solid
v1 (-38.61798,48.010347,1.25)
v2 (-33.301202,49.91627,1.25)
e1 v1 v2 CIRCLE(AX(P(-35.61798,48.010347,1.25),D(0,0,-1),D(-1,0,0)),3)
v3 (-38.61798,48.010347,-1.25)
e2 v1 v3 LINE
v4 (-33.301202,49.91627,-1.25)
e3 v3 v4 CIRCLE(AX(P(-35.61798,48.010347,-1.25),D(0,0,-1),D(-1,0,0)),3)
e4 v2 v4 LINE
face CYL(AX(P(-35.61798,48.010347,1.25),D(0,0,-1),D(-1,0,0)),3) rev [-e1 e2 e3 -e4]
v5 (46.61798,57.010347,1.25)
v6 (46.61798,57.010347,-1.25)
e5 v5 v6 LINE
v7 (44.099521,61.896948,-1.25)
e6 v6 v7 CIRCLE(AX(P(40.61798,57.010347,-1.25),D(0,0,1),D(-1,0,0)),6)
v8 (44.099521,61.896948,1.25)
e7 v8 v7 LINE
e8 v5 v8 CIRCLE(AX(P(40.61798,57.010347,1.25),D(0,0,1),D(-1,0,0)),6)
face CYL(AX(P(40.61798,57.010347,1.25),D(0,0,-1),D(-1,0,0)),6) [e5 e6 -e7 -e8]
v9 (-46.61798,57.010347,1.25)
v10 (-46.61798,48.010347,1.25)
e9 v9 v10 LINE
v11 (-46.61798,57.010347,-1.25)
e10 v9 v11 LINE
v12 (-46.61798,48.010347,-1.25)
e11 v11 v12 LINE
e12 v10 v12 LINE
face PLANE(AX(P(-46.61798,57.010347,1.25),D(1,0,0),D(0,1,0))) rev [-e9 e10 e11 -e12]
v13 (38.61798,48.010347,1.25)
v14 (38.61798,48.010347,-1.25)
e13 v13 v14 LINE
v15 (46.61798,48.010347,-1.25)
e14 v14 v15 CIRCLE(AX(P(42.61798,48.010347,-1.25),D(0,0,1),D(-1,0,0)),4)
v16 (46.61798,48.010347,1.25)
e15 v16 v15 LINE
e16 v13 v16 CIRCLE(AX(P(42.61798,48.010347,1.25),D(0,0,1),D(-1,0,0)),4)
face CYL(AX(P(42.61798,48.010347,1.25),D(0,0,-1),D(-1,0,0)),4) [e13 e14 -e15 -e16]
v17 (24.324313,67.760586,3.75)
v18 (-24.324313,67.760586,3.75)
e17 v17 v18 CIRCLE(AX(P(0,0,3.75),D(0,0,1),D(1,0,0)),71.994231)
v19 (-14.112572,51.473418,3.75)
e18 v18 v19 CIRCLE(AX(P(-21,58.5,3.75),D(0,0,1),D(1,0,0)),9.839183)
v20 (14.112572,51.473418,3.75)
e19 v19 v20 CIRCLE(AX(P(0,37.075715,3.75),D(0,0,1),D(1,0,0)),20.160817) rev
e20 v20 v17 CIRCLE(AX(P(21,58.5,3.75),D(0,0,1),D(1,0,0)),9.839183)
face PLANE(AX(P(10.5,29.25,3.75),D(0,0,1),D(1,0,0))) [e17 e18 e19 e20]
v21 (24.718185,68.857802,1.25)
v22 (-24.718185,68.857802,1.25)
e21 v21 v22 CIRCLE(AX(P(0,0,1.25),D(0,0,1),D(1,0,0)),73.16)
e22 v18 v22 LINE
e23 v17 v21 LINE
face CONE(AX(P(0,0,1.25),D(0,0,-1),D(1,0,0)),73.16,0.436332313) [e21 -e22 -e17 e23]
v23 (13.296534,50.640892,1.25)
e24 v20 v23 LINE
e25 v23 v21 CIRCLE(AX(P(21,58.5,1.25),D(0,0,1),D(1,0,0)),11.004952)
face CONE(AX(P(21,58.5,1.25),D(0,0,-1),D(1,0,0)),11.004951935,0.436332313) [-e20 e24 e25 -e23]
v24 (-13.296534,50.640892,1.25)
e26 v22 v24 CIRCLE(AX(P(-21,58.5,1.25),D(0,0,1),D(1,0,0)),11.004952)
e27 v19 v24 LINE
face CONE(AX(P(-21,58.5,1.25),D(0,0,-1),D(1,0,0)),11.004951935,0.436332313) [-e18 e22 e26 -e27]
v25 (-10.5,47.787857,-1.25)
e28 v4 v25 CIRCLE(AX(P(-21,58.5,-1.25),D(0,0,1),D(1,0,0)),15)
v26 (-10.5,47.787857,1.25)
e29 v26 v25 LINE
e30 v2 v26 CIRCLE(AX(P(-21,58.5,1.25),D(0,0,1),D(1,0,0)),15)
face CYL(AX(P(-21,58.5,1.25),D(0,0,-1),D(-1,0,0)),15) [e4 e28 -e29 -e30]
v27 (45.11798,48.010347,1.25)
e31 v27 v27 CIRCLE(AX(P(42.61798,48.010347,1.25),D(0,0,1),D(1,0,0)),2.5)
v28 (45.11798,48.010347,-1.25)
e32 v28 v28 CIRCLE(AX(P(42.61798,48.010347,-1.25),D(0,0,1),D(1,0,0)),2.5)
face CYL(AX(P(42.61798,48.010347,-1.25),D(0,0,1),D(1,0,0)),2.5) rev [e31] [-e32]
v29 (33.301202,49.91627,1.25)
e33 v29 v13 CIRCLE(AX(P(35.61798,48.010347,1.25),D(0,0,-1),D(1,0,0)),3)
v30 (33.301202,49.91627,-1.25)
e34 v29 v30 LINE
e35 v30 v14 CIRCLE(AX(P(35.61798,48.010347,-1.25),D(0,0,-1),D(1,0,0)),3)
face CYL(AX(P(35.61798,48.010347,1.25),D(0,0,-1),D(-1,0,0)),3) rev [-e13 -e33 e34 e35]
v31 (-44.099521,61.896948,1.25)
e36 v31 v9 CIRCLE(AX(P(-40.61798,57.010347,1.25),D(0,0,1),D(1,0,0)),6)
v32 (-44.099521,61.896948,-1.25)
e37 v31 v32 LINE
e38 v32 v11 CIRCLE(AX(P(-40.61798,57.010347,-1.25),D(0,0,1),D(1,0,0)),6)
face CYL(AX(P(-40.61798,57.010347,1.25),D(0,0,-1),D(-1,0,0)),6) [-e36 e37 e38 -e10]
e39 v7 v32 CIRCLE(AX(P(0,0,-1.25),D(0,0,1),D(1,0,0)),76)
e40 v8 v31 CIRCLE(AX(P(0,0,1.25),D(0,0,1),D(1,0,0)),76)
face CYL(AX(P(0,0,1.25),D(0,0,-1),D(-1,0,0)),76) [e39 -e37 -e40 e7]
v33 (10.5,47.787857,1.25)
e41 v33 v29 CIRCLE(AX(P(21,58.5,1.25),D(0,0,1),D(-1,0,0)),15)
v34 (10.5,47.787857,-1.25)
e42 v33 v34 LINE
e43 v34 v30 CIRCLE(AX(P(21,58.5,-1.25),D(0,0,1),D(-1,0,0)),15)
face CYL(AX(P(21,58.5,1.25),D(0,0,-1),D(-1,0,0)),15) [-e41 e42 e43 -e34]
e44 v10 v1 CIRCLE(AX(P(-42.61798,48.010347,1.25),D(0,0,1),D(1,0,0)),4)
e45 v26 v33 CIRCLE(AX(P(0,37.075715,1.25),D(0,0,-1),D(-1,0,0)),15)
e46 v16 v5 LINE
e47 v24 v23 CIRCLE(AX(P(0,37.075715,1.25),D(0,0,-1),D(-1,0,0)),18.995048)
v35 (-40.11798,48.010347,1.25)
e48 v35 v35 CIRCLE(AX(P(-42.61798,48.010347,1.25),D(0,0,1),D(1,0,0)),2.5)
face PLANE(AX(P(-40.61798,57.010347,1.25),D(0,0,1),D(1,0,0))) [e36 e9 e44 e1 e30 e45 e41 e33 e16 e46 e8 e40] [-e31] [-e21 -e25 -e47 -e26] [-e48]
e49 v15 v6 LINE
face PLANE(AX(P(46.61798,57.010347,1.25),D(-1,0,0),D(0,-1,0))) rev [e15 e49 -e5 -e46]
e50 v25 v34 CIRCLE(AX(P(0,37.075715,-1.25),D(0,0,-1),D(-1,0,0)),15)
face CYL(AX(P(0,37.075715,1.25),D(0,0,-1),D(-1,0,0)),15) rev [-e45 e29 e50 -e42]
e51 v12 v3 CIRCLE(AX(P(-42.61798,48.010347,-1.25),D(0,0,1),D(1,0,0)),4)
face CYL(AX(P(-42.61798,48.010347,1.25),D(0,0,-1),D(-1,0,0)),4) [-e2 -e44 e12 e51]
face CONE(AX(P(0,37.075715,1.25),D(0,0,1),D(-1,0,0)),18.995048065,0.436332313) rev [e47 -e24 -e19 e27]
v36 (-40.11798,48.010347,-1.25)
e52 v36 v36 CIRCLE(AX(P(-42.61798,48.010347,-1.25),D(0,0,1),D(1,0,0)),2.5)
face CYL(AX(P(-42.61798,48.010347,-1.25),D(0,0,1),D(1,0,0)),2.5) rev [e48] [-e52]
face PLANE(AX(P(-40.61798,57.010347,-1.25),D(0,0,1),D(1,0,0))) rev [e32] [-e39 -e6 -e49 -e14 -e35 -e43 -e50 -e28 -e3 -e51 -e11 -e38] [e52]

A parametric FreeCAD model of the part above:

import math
import FreeCAD as App
import Part
import Sketcher

doc = App.newDocument("Part")
body = doc.addObject("PartDesign::Body", "Body")

# Sketch on XY plane
sketch1 = doc.addObject("Sketcher::SketchObject", "Sketch")
body.addObject(sketch1)
sketch1.AttachmentSupport = (doc.XY_Plane, [""])
sketch1.MapMode = "FlatFace"
sketch1.addGeometry([
    Part.LineSegment(App.Vector(-46.61798, 57.010347, 0), App.Vector(-46.61798, 48.010347, 0)),  # 0
    Part.ArcOfCircle(Part.Circle(App.Vector(-42.61798, 48.010347, 0), App.Vector(0, 0, 1), 4), math.radians(180), math.radians(360)),  # 1
    Part.ArcOfCircle(Part.Circle(App.Vector(-35.61798, 48.010347, 0), App.Vector(0, 0, 1), 3), math.radians(39.442789), math.radians(180)),  # 2
    Part.ArcOfCircle(Part.Circle(App.Vector(-21, 58.5, 0), App.Vector(0, 0, 1), 15), math.radians(-145.092816), math.radians(-45.572996)),  # 3
    Part.ArcOfCircle(Part.Circle(App.Vector(0, 37.075715, 0), App.Vector(0, 0, 1), 15), math.radians(45.572996), math.radians(134.427004)),  # 4
    Part.ArcOfCircle(Part.Circle(App.Vector(21, 58.5, 0), App.Vector(0, 0, 1), 15), math.radians(-134.427004), math.radians(-34.907184)),  # 5
    Part.ArcOfCircle(Part.Circle(App.Vector(35.61798, 48.010347, 0), App.Vector(0, 0, 1), 3), math.radians(0), math.radians(140.557211)),  # 6
    Part.ArcOfCircle(Part.Circle(App.Vector(42.61798, 48.010347, 0), App.Vector(0, 0, 1), 4), math.radians(180), math.radians(360)),  # 7
    Part.LineSegment(App.Vector(46.61798, 48.010347, 0), App.Vector(46.61798, 57.010347, 0)),  # 8
    Part.ArcOfCircle(Part.Circle(App.Vector(40.61798, 57.010347, 0), App.Vector(0, 0, 1), 6), math.radians(0), math.radians(54.531389)),  # 9
    Part.ArcOfCircle(Part.Circle(App.Vector(0, 0, 0), App.Vector(0, 0, 1), 76), math.radians(54.531389), math.radians(125.468611)),  # 10
    Part.ArcOfCircle(Part.Circle(App.Vector(-40.61798, 57.010347, 0), App.Vector(0, 0, 1), 6), math.radians(125.468611), math.radians(180)),  # 11
], False)
sketch1.addConstraint([
    Sketcher.Constraint("Coincident", 0, 2, 1, 1),
    Sketcher.Constraint("Coincident", 1, 2, 2, 2),
    Sketcher.Constraint("Coincident", 2, 1, 3, 1),
    Sketcher.Constraint("Coincident", 3, 2, 4, 2),
    Sketcher.Constraint("Coincident", 4, 1, 5, 1),
    Sketcher.Constraint("Coincident", 5, 2, 6, 2),
    Sketcher.Constraint("Coincident", 6, 1, 7, 1),
    Sketcher.Constraint("Coincident", 7, 2, 8, 1),
    Sketcher.Constraint("Coincident", 8, 2, 9, 1),
    Sketcher.Constraint("Coincident", 9, 2, 10, 1),
    Sketcher.Constraint("Coincident", 10, 2, 11, 1),
    Sketcher.Constraint("Coincident", 11, 2, 0, 1),
    Sketcher.Constraint("Vertical", 0),
    Sketcher.Constraint("Vertical", 8),
    Sketcher.Constraint("Coincident", 10, 3, -1, 1),
    Sketcher.Constraint("PointOnObject", 4, 3, -2),
    Sketcher.Constraint("Radius", 1, 4.0),
    Sketcher.Constraint("Radius", 2, 3.0),
    Sketcher.Constraint("Radius", 3, 15.0),
    Sketcher.Constraint("Radius", 4, 15.0),
    Sketcher.Constraint("Radius", 5, 15.0),
    Sketcher.Constraint("Radius", 6, 3.0),
    Sketcher.Constraint("Radius", 7, 4.0),
    Sketcher.Constraint("Radius", 9, 6.0),
    Sketcher.Constraint("Radius", 10, 76.0),
    Sketcher.Constraint("Radius", 11, 6.0),
    Sketcher.Constraint("DistanceY", 0, 2, 0, 1, 9.0),
    Sketcher.Constraint("DistanceY", 8, 1, 8, 2, 9.0),
    Sketcher.Constraint("DistanceX", 3, 3, -1, 1, 21.0),
    Sketcher.Constraint("DistanceX", -1, 1, 5, 3, 21.0),
    Sketcher.Constraint("DistanceY", 7, 3, 9, 3, 9.0),
    Sketcher.Constraint("DistanceY", 6, 3, 9, 3, 9.0),
    Sketcher.Constraint("DistanceY", 1, 3, 11, 3, 9.0),
    Sketcher.Constraint("DistanceY", 2, 3, 11, 3, 9.0),
    Sketcher.Constraint("DistanceY", 0, 2, 11, 3, 9.0),
    Sketcher.Constraint("DistanceY", 1, 2, 11, 3, 9.0),
    Sketcher.Constraint("DistanceX", 3, 2, 4, 1, 21.0),
    Sketcher.Constraint("DistanceY", 6, 1, 9, 3, 9.0),
    Sketcher.Constraint("DistanceY", 7, 2, 9, 3, 9.0),
    Sketcher.Constraint("DistanceY", -1, 1, 3, 3, 58.5),
    Sketcher.Constraint("DistanceX", 3, 2, -1, 1, 10.5),
    Sketcher.Constraint("DistanceY", 8, 2, 9, 2, 4.886601),
    Sketcher.Constraint("DistanceY", 11, 3, 10, 2, 4.886601),
    Sketcher.Constraint("DistanceX", 1, 3, -1, 1, 42.61798),
    Sketcher.Constraint("DistanceX", -1, 1, 6, 3, 35.61798),
])
pad1 = doc.addObject("PartDesign::Pad", "Pad")
body.addObject(pad1)
pad1.Profile = sketch1
pad1.Length = 2.5
pad1.Midplane = True

# Sketch on XY plane
sketch2 = doc.addObject("Sketcher::SketchObject", "Sketch001")
body.addObject(sketch2)
sketch2.AttachmentSupport = (doc.XY_Plane, [""])
sketch2.MapMode = "FlatFace"
sketch2.AttachmentOffset = App.Placement(App.Vector(0, 0, 1.25), App.Rotation())
sketch2.addGeometry([
    Part.ArcOfCircle(Part.Circle(App.Vector(0, 0, 0), App.Vector(0, 0, 1), 73.16), math.radians(70.253163), math.radians(109.746837)),
    Part.ArcOfCircle(Part.Circle(App.Vector(-21, 58.5, 0), App.Vector(0, 0, 1), 11.004952), math.radians(109.746837), math.radians(314.427004)),
    Part.ArcOfCircle(Part.Circle(App.Vector(0, 37.075715, 0), App.Vector(0, 0, 1), 18.995048), math.radians(45.572996), math.radians(134.427004)),
    Part.ArcOfCircle(Part.Circle(App.Vector(21, 58.5, 0), App.Vector(0, 0, 1), 11.004952), math.radians(-134.427004), math.radians(70.253163)),
], False)
sketch2.addConstraint([
    Sketcher.Constraint("Tangent", 0, 2, 1, 1),
    Sketcher.Constraint("Tangent", 1, 2, 2, 2),
    Sketcher.Constraint("Tangent", 2, 1, 3, 1),
    Sketcher.Constraint("Tangent", 3, 2, 0, 1),
    Sketcher.Constraint("Coincident", 0, 3, -1, 1),
    Sketcher.Constraint("Equal", 1, 3),
    Sketcher.Constraint("PointOnObject", 2, 3, -2),
    Sketcher.Constraint("Radius", 0, 73.16),
    Sketcher.Constraint("DistanceX", 1, 3, -1, 1, 21.0),
    Sketcher.Constraint("DistanceY", -1, 1, 1, 3, 58.5),
    Sketcher.Constraint("Radius", 2, 18.995048),
])
pad2 = doc.addObject("PartDesign::Pad", "Pad001")
body.addObject(pad2)
pad2.Profile = sketch2
pad2.Length = 2.5
pad2.TaperAngle = -25

# Sketch on XY plane
sketch3 = doc.addObject("Sketcher::SketchObject", "Sketch002")
body.addObject(sketch3)
sketch3.AttachmentSupport = (doc.XY_Plane, [""])
sketch3.MapMode = "FlatFace"
sketch3.AttachmentOffset = App.Placement(App.Vector(0, 0, 1.25), App.Rotation())
sketch3.addGeometry([
    Part.Circle(App.Vector(-42.61798, 48.010347, 0), App.Vector(0, 0, 1), 2.5),
    Part.Circle(App.Vector(42.61798, 48.010347, 0), App.Vector(0, 0, 1), 2.5),
], False)
sketch3.addConstraint([
    Sketcher.Constraint("Equal", 0, 1),
    Sketcher.Constraint("Symmetric", 0, 3, 1, 3, -2),
    Sketcher.Constraint("Diameter", 0, 5.0),
    Sketcher.Constraint("DistanceX", 0, 3, -1, 1, 42.61798),
    Sketcher.Constraint("DistanceY", -1, 1, 0, 3, 48.010347),
])
pocket1 = doc.addObject("PartDesign::Pocket", "Pocket")
body.addObject(pocket1)
pocket1.Profile = sketch3
pocket1.Type = "ThroughAll"

doc.recompute()
